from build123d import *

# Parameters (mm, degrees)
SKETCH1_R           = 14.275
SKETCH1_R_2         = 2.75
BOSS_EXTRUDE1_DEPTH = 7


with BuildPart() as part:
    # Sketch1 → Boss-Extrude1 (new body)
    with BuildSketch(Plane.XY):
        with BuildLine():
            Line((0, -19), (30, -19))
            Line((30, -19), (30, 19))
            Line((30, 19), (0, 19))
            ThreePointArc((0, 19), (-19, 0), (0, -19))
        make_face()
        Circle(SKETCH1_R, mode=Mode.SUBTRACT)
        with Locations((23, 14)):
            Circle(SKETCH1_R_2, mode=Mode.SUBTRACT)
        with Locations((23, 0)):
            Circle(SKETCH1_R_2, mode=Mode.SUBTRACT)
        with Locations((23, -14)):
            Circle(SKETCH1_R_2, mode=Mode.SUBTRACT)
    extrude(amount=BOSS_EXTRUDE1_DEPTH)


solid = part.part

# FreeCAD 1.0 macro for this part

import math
import FreeCAD as App
import Part
import Sketcher

V = App.Vector
Q = App.Units.Quantity

doc = App.newDocument("Part")
body = doc.addObject("PartDesign::Body", "Body")

sketch1 = body.newObject("Sketcher::SketchObject", "Sketch")
sketch1.AttachmentSupport = (doc.getObject("XY_Plane"), [""])
sketch1.MapMode = "FlatFace"
sketch1.addGeometry([
    Part.LineSegment(V(0, -19, 0), V(30, -19, 0)),
    Part.LineSegment(V(30, -19, 0), V(30, 19, 0)),
    Part.LineSegment(V(30, 19, 0), V(0, 19, 0)),
    Part.ArcOfCircle(Part.Circle(V(0, 0, 0), V(0, 0, 1), 19), math.radians(90), math.radians(270)),
    Part.Circle(V(23, -14, 0), V(0, 0, 1), 2.8),
    Part.Circle(V(0, 0, 0), V(0, 0, 1), 14.3),
    Part.Circle(V(23, 0, 0), V(0, 0, 1), 2.8),
    Part.Circle(V(23, 14, 0), V(0, 0, 1), 2.8),
], False)
sketch1.addConstraint([
    Sketcher.Constraint("Coincident", 0, 2, 1, 1),
    Sketcher.Constraint("Coincident", 1, 2, 2, 1),
    Sketcher.Constraint("Tangent", 2, 2, 3, 1),
    Sketcher.Constraint("Tangent", 3, 2, 0, 1),
    Sketcher.Constraint("Horizontal", 0),
    Sketcher.Constraint("Vertical", 1),
    Sketcher.Constraint("Horizontal", 2),
    Sketcher.Constraint("Coincident", 3, 3, -1, 1),
    Sketcher.Constraint("Coincident", 5, 3, -1, 1),
    Sketcher.Constraint("Equal", 4, 6),
    Sketcher.Constraint("Equal", 6, 7),
    Sketcher.Constraint("Symmetric", 4, 3, 7, 3, -1),
    Sketcher.Constraint("PointOnObject", 6, 3, -1),
    Sketcher.Constraint("Vertical", 4, 3, 6, 3),
    Sketcher.Constraint("Radius", 3, Q("19 mm")),
    Sketcher.Constraint("Diameter", 4, Q("5.5 mm")),
    Sketcher.Constraint("Diameter", 5, Q("28.55 mm")),
    Sketcher.Constraint("DistanceX", 0, 1, 0, 2, Q("30 mm")),
    Sketcher.Constraint("DistanceX", -1, 1, 4, 3, Q("23 mm")),
    Sketcher.Constraint("DistanceY", 4, 3, -1, 1, Q("14 mm")),
])
pad1 = body.newObject("PartDesign::Pad", "Pad")
pad1.Profile = sketch1
pad1.Length = 7

doc.recompute()
